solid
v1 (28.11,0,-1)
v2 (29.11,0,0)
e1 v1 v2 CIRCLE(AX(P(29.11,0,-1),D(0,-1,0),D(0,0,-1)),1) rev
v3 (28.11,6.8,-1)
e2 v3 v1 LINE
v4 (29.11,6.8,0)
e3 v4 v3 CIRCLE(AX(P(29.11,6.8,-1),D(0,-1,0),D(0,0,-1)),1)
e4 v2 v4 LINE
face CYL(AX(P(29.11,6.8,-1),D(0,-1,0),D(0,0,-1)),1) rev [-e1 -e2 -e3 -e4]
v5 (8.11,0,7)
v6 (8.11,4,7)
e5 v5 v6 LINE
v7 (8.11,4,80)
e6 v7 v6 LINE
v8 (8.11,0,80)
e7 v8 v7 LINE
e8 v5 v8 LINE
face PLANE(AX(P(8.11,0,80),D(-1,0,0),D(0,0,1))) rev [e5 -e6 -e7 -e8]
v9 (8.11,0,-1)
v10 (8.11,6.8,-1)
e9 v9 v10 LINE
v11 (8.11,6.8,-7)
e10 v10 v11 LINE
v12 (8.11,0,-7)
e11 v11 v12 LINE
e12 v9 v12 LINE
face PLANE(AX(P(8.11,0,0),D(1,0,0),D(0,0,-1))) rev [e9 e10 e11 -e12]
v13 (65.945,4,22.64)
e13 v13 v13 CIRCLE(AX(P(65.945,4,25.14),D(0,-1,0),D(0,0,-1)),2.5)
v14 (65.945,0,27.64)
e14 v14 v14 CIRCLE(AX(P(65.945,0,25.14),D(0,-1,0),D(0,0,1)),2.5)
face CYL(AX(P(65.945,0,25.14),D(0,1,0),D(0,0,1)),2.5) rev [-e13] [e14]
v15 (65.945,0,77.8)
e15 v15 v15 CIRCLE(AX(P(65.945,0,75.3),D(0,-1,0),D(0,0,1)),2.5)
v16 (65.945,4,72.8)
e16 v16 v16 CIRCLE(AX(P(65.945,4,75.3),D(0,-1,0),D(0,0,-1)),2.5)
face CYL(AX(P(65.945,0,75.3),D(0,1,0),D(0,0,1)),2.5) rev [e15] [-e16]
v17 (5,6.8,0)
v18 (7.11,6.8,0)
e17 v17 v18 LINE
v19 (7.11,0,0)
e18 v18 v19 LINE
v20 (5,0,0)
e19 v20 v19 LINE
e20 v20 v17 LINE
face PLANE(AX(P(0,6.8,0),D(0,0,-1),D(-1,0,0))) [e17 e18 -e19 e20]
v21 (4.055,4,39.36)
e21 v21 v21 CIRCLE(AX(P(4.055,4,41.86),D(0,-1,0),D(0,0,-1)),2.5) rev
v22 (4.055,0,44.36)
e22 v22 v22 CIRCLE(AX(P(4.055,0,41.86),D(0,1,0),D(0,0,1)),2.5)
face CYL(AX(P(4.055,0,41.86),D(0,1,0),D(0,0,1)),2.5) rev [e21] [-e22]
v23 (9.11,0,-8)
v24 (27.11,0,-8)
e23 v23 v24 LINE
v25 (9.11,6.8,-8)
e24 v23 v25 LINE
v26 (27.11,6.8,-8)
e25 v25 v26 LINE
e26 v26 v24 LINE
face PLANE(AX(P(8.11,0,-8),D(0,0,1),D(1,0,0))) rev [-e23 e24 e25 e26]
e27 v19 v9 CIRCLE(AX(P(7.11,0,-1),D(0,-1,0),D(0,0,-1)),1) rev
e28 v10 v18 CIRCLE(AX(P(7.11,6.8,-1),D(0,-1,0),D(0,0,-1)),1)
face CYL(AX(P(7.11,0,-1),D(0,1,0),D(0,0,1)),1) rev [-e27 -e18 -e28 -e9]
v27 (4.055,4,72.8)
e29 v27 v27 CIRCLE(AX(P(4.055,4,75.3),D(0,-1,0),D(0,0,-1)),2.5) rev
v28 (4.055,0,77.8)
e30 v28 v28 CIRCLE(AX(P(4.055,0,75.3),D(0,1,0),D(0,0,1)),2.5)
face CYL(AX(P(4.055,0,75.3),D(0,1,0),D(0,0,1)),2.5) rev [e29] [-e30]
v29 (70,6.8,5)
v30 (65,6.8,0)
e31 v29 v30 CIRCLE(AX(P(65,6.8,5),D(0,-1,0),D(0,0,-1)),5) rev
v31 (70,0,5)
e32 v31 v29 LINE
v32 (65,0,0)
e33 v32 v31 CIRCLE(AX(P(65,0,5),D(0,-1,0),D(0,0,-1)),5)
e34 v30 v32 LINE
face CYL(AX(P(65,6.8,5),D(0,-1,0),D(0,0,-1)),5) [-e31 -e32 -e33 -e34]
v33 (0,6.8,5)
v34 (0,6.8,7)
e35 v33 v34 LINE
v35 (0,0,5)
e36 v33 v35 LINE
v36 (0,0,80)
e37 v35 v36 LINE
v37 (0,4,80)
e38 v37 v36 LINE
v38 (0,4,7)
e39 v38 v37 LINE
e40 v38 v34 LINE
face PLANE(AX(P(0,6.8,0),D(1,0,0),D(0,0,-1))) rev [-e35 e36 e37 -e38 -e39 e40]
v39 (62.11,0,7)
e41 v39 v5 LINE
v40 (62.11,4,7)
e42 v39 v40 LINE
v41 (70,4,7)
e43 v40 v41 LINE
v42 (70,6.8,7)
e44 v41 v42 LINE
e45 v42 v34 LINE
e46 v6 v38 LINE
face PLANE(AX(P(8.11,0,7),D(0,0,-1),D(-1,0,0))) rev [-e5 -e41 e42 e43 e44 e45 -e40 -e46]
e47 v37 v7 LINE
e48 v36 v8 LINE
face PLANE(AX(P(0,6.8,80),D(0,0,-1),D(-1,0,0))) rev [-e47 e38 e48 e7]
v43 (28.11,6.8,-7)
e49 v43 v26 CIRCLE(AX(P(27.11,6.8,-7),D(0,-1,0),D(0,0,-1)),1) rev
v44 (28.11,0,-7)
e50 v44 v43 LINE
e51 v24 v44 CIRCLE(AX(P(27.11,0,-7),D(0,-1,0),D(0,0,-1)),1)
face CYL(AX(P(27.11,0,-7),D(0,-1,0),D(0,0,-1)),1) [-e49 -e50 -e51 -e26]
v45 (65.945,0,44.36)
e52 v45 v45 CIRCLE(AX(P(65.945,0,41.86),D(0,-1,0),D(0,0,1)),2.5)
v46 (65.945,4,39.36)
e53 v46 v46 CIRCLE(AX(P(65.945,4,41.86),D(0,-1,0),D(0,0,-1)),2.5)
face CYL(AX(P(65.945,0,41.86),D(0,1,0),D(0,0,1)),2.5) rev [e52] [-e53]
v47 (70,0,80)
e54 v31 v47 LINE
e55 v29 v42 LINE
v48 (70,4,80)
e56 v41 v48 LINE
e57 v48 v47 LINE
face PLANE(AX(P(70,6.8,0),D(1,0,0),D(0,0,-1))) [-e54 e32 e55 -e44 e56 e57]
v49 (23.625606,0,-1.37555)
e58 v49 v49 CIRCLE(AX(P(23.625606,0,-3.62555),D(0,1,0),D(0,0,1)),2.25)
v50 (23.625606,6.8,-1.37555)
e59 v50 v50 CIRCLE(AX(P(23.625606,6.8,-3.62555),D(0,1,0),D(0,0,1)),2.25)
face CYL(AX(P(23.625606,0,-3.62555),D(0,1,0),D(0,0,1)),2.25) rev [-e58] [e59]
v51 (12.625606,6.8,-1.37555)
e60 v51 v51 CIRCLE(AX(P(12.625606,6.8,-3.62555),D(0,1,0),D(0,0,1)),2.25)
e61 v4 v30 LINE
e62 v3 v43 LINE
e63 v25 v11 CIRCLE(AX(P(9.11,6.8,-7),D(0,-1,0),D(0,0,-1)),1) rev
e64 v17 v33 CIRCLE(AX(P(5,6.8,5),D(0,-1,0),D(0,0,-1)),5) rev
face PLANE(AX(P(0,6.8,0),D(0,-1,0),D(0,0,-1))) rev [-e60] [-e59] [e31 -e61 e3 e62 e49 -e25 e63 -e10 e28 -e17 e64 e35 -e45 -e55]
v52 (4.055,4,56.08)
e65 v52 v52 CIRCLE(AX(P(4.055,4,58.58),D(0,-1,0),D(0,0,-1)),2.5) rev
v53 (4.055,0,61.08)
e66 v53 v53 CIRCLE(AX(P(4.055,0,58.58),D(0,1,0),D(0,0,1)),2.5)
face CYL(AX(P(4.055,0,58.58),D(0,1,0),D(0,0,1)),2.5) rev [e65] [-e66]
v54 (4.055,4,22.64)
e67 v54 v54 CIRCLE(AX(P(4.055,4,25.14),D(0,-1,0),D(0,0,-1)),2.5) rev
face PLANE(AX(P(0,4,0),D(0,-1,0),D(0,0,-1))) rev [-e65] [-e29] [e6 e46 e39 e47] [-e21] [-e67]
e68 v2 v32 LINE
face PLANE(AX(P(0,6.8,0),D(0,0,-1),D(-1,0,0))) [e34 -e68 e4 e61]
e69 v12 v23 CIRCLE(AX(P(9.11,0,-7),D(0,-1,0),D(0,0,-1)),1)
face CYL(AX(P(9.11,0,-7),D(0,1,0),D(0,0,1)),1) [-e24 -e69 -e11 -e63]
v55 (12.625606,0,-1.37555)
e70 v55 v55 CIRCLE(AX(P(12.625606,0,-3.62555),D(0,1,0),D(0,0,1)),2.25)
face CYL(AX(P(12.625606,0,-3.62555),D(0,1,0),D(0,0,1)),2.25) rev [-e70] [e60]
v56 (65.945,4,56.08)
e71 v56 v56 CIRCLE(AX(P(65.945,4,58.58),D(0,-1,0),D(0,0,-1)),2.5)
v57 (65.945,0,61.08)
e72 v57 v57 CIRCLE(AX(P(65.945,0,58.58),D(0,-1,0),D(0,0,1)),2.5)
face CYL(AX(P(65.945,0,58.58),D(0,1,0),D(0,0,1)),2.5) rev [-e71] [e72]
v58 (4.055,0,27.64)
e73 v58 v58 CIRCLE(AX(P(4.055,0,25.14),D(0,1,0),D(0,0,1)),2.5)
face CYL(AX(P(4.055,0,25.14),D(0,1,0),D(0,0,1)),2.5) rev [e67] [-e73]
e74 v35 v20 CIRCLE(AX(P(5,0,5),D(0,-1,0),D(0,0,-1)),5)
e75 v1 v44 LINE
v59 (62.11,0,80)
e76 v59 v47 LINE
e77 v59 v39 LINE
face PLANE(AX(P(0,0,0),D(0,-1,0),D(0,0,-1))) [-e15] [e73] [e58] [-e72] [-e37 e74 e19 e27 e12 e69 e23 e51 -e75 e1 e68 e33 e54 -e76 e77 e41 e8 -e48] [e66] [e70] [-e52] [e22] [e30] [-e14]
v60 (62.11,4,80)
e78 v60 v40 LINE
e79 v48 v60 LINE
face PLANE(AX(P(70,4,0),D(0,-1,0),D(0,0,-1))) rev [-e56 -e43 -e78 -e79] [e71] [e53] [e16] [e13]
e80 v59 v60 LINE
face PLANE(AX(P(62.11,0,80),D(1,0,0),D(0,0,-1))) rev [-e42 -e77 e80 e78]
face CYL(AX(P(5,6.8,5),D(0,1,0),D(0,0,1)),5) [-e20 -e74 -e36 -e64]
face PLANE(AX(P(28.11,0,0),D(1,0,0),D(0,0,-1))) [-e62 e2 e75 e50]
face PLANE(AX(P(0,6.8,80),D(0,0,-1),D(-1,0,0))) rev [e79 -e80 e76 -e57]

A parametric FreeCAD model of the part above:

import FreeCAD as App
import Part
import Sketcher

V = App.Vector


def edges_at(feature, points):
    """Names of the edges that pass closest to the given points."""
    edges = feature.Shape.Edges
    near = lambda p: min(range(len(edges)), key=lambda i: edges[i].distToShape(Part.Vertex(*p))[0])
    return sorted({f"Edge{near(p) + 1}" for p in points})

doc = App.newDocument("Part")
body = doc.addObject("PartDesign::Body", "Body")

sketch1 = body.newObject("Sketcher::SketchObject", "Sketch")
sketch1.AttachmentSupport = (doc.getObject("XZ_Plane"), [""])
sketch1.MapMode = "FlatFace"
sketch1.addGeometry(Part.LineSegment(V(0, 0, 0), V(0, 80, 0)), False)
sketch1.addGeometry(Part.LineSegment(V(0, 80, 0), V(70, 80, 0)), False)
sketch1.addGeometry(Part.LineSegment(V(70, 80, 0), V(70, 0, 0)), False)
sketch1.addGeometry(Part.LineSegment(V(70, 0, 0), V(0, 0, 0)), False)
sketch1.addConstraint(Sketcher.Constraint("Coincident", 0, 2, 1, 1))
sketch1.addConstraint(Sketcher.Constraint("Coincident", 1, 2, 2, 1))
sketch1.addConstraint(Sketcher.Constraint("Coincident", 2, 2, 3, 1))
sketch1.addConstraint(Sketcher.Constraint("Coincident", 3, 2, 0, 1))
sketch1.addConstraint(Sketcher.Constraint("Vertical", 0))
sketch1.addConstraint(Sketcher.Constraint("Horizontal", 1))
sketch1.addConstraint(Sketcher.Constraint("Vertical", 2))
sketch1.addConstraint(Sketcher.Constraint("Horizontal", 3))
sketch1.addConstraint(Sketcher.Constraint("Coincident", 3, 2, -1, 1))
sketch1.addConstraint(Sketcher.Constraint("DistanceX", 1, 1, 1, 2, 70.0))
sketch1.addConstraint(Sketcher.Constraint("DistanceY", 0, 1, 0, 2, 80.0))
pad1 = body.newObject("PartDesign::Pad", "Pad")
pad1.Profile = sketch1
pad1.Length = 6.8
pad1.Reversed = True

sketch2 = body.newObject("Sketcher::SketchObject", "Sketch001")
sketch2.AttachmentSupport = (doc.getObject("XZ_Plane"), [""])
sketch2.MapMode = "FlatFace"
sketch2.AttachmentOffset = App.Placement(V(0, 0, -6.8), App.Rotation())
sketch2.addGeometry(Part.LineSegment(V(8, 7, 0), V(8, 80, 0)), False)
sketch2.addGeometry(Part.LineSegment(V(8, 80, 0), V(62, 80, 0)), False)
sketch2.addGeometry(Part.LineSegment(V(62, 80, 0), V(62, 7, 0)), False)
sketch2.addGeometry(Part.LineSegment(V(62, 7, 0), V(8, 7, 0)), False)
sketch2.addConstraint(Sketcher.Constraint("Coincident", 0, 2, 1, 1))
sketch2.addConstraint(Sketcher.Constraint("Coincident", 1, 2, 2, 1))
sketch2.addConstraint(Sketcher.Constraint("Coincident", 2, 2, 3, 1))
sketch2.addConstraint(Sketcher.Constraint("Coincident", 3, 2, 0, 1))
sketch2.addConstraint(Sketcher.Constraint("Vertical", 0))
sketch2.addConstraint(Sketcher.Constraint("Horizontal", 1))
sketch2.addConstraint(Sketcher.Constraint("Vertical", 2))
sketch2.addConstraint(Sketcher.Constraint("Horizontal", 3))
sketch2.addConstraint(Sketcher.Constraint("DistanceX", 1, 1, 1, 2, 54.0))
sketch2.addConstraint(Sketcher.Constraint("DistanceY", 0, 1, 0, 2, 73.0))
sketch2.addConstraint(Sketcher.Constraint("DistanceY", -1, 1, 0, 2, 80.0))
sketch2.addConstraint(Sketcher.Constraint("DistanceX", -1, 1, 0, 2, 8.11))
pocket1 = body.newObject("PartDesign::Pocket", "Pocket")
pocket1.Profile = sketch2
pocket1.Type = "ThroughAll"
pocket1.Reversed = True

sketch3 = body.newObject("Sketcher::SketchObject", "Sketch002")
sketch3.AttachmentSupport = (doc.getObject("XZ_Plane"), [""])
sketch3.MapMode = "FlatFace"
sketch3.AttachmentOffset = App.Placement(V(0, 0, -6.8), App.Rotation())
sketch3.addGeometry(Part.Circle(V(4.1, 75.3, 0), V(0, 0, 1), 2.5), False)
sketch3.addConstraint(Sketcher.Constraint("Diameter", 0, 5.0))
sketch3.addConstraint(Sketcher.Constraint("DistanceY", -1, 1, 0, 3, 75.3))
sketch3.addConstraint(Sketcher.Constraint("DistanceX", -1, 1, 0, 3, 4.055))
pocket2 = body.newObject("PartDesign::Pocket", "Pocket001")
pocket2.Profile = sketch3
pocket2.Type = "ThroughAll"
pocket2.Reversed = True
doc.recompute()

linearpattern = body.newObject("PartDesign::LinearPattern", "LinearPattern")
linearpattern.Originals = [pocket2]
linearpattern.Direction = (doc.getObject("Z_Axis"), [""])
linearpattern.Mode = "offset"
linearpattern.Offset = 16.72
linearpattern.Occurrences = 4
linearpattern.Reversed = True
body.Tip = linearpattern
doc.recompute()

datumplane = body.newObject("PartDesign::Plane", "DatumPlane")
datumplane.AttachmentSupport = (doc.getObject("YZ_Plane"), [""])
datumplane.MapMode = "FlatFace"
datumplane.AttachmentOffset = App.Placement(V(0, 0, 35), App.Rotation())
mirrored = body.newObject("PartDesign::Mirrored", "Mirrored")
mirrored.Originals = [pocket2]
mirrored.MirrorPlane = (datumplane, [""])
body.Tip = mirrored

sketch4 = body.newObject("Sketcher::SketchObject", "Sketch003")
sketch4.AttachmentSupport = (doc.getObject("XZ_Plane"), [""])
sketch4.MapMode = "FlatFace"
sketch4.AttachmentOffset = App.Placement(V(0, 0, -6.8), App.Rotation())
sketch4.addGeometry(Part.Circle(V(65.9, 58.6, 0), V(0, 0, 1), 2.5), False)
sketch4.addConstraint(Sketcher.Constraint("Diameter", 0, 5.0))
sketch4.addConstraint(Sketcher.Constraint("DistanceY", -1, 1, 0, 3, 58.58))
sketch4.addConstraint(Sketcher.Constraint("DistanceX", -1, 1, 0, 3, 65.945))
pocket3 = body.newObject("PartDesign::Pocket", "Pocket002")
pocket3.Profile = sketch4
pocket3.Type = "ThroughAll"
pocket3.Reversed = True

sketch5 = body.newObject("Sketcher::SketchObject", "Sketch004")
sketch5.AttachmentSupport = (doc.getObject("XZ_Plane"), [""])
sketch5.MapMode = "FlatFace"
sketch5.AttachmentOffset = App.Placement(V(0, 0, -6.8), App.Rotation())
sketch5.addGeometry(Part.Circle(V(65.9, 41.9, 0), V(0, 0, 1), 2.5), False)
sketch5.addConstraint(Sketcher.Constraint("Diameter", 0, 5.0))
sketch5.addConstraint(Sketcher.Constraint("DistanceY", -1, 1, 0, 3, 41.86))
sketch5.addConstraint(Sketcher.Constraint("DistanceX", -1, 1, 0, 3, 65.945))
pocket4 = body.newObject("PartDesign::Pocket", "Pocket003")
pocket4.Profile = sketch5
pocket4.Type = "ThroughAll"
pocket4.Reversed = True

sketch6 = body.newObject("Sketcher::SketchObject", "Sketch005")
sketch6.AttachmentSupport = (doc.getObject("XZ_Plane"), [""])
sketch6.MapMode = "FlatFace"
sketch6.AttachmentOffset = App.Placement(V(0, 0, -6.8), App.Rotation())
sketch6.addGeometry(Part.Circle(V(65.9, 25.1, 0), V(0, 0, 1), 2.5), False)
sketch6.addConstraint(Sketcher.Constraint("Diameter", 0, 5.0))
sketch6.addConstraint(Sketcher.Constraint("DistanceY", -1, 1, 0, 3, 25.14))
sketch6.addConstraint(Sketcher.Constraint("DistanceX", -1, 1, 0, 3, 65.945))
pocket5 = body.newObject("PartDesign::Pocket", "Pocket004")
pocket5.Profile = sketch6
pocket5.Type = "ThroughAll"
pocket5.Reversed = True

sketch7 = body.newObject("Sketcher::SketchObject", "Sketch006")
sketch7.AttachmentSupport = (doc.getObject("XZ_Plane"), [""])
sketch7.MapMode = "FlatFace"
sketch7.AttachmentOffset = App.Placement(V(0, 0, -6.8), App.Rotation())
sketch7.addGeometry(Part.LineSegment(V(0, 7, 0), V(0, 80, 0)), False)
sketch7.addGeometry(Part.LineSegment(V(0, 80, 0), V(8, 80, 0)), False)
sketch7.addGeometry(Part.LineSegment(V(8, 80, 0), V(8, 7, 0)), False)
sketch7.addGeometry(Part.LineSegment(V(8, 7, 0), V(0, 7, 0)), False)
sketch7.addConstraint(Sketcher.Constraint("Coincident", 0, 2, 1, 1))
sketch7.addConstraint(Sketcher.Constraint("Coincident", 1, 2, 2, 1))
sketch7.addConstraint(Sketcher.Constraint("Coincident", 2, 2, 3, 1))
sketch7.addConstraint(Sketcher.Constraint("Coincident", 3, 2, 0, 1))
sketch7.addConstraint(Sketcher.Constraint("Vertical", 0))
sketch7.addConstraint(Sketcher.Constraint("Horizontal", 1))
sketch7.addConstraint(Sketcher.Constraint("Vertical", 2))
sketch7.addConstraint(Sketcher.Constraint("Horizontal", 3))
sketch7.addConstraint(Sketcher.Constraint("PointOnObject", 0, 2, -2))
sketch7.addConstraint(Sketcher.Constraint("DistanceY", 0, 1, 0, 2, 73.0))
sketch7.addConstraint(Sketcher.Constraint("DistanceY", -1, 1, 0, 2, 80.0))
sketch7.addConstraint(Sketcher.Constraint("DistanceX", 1, 1, 1, 2, 8.11))
pocket6 = body.newObject("PartDesign::Pocket", "Pocket005")
pocket6.Profile = sketch7
pocket6.Length = 2.8
pocket6.Reversed = True
doc.recompute()

datumplane2 = body.newObject("PartDesign::Plane", "DatumPlane001")
datumplane2.AttachmentSupport = (doc.getObject("YZ_Plane"), [""])
datumplane2.MapMode = "FlatFace"
datumplane2.AttachmentOffset = App.Placement(V(0, 0, 35), App.Rotation())
mirrored2 = body.newObject("PartDesign::Mirrored", "Mirrored001")
mirrored2.Originals = [pocket6]
mirrored2.MirrorPlane = (datumplane2, [""])
body.Tip = mirrored2

sketch8 = body.newObject("Sketcher::SketchObject", "Sketch007")
sketch8.AttachmentSupport = (doc.getObject("XZ_Plane"), [""])
sketch8.MapMode = "FlatFace"
sketch8.AttachmentOffset = App.Placement(V(0, 0, -6.8), App.Rotation())
sketch8.addGeometry(Part.LineSegment(V(8, -8, 0), V(8, 0, 0)), False)
sketch8.addGeometry(Part.LineSegment(V(8, 0, 0), V(28, 0, 0)), False)
sketch8.addGeometry(Part.LineSegment(V(28, 0, 0), V(28, -8, 0)), False)
sketch8.addGeometry(Part.LineSegment(V(28, -8, 0), V(8, -8, 0)), False)
sketch8.addConstraint(Sketcher.Constraint("Coincident", 0, 2, 1, 1))
sketch8.addConstraint(Sketcher.Constraint("Coincident", 1, 2, 2, 1))
sketch8.addConstraint(Sketcher.Constraint("Coincident", 2, 2, 3, 1))
sketch8.addConstraint(Sketcher.Constraint("Coincident", 3, 2, 0, 1))
sketch8.addConstraint(Sketcher.Constraint("Vertical", 0))
sketch8.addConstraint(Sketcher.Constraint("Horizontal", 1))
sketch8.addConstraint(Sketcher.Constraint("Vertical", 2))
sketch8.addConstraint(Sketcher.Constraint("Horizontal", 3))
sketch8.addConstraint(Sketcher.Constraint("PointOnObject", 0, 2, -1))
sketch8.addConstraint(Sketcher.Constraint("DistanceX", 1, 1, 1, 2, 20.0))
sketch8.addConstraint(Sketcher.Constraint("DistanceY", 0, 1, 0, 2, 8.0))
sketch8.addConstraint(Sketcher.Constraint("DistanceX", -1, 1, 0, 2, 8.11))
pad2 = body.newObject("PartDesign::Pad", "Pad001")
pad2.Profile = sketch8
pad2.Length = 6.8

sketch9 = body.newObject("Sketcher::SketchObject", "Sketch008")
sketch9.AttachmentSupport = (doc.getObject("XZ_Plane"), [""])
sketch9.MapMode = "FlatFace"
sketch9.AttachmentOffset = App.Placement(V(0, 0, -6.8), App.Rotation())
sketch9.addGeometry(Part.Circle(V(12.6, -3.6, 0), V(0, 0, 1), 2.2), False)
sketch9.addGeometry(Part.Circle(V(23.6, -3.6, 0), V(0, 0, 1), 2.2), False)
sketch9.addConstraint(Sketcher.Constraint("Equal", 0, 1))
sketch9.addConstraint(Sketcher.Constraint("Horizontal", 0, 3, 1, 3))
sketch9.addConstraint(Sketcher.Constraint("Diameter", 0, 4.5))
sketch9.addConstraint(Sketcher.Constraint("DistanceX", 0, 3, 1, 3, 11.0))
sketch9.addConstraint(Sketcher.Constraint("DistanceY", 0, 3, -1, 1, 3.62555))
sketch9.addConstraint(Sketcher.Constraint("DistanceX", -1, 1, 0, 3, 12.625606))
pocket7 = body.newObject("PartDesign::Pocket", "Pocket006")
pocket7.Profile = sketch9
pocket7.Length = 6.8
pocket7.Reversed = True
doc.recompute()

fillet = body.newObject("PartDesign::Fillet", "Fillet")
fillet.Base = (pocket7, edges_at(pocket7, [(8.11, 3.4, 0)]))
fillet.Radius = 1
doc.recompute()

fillet2 = body.newObject("PartDesign::Fillet", "Fillet001")
fillet2.Base = (fillet, edges_at(fillet, [(8.11, 3.4, -8), (28.11, 3.4, -8), (28.11, 3.4, 0)]))
fillet2.Radius = 1
doc.recompute()

fillet3 = body.newObject("PartDesign::Fillet", "Fillet002")
fillet3.Base = (fillet2, edges_at(fillet2, [(0, 3.4, 0), (70, 3.4, 0)]))
fillet3.Radius = 5

doc.recompute()
